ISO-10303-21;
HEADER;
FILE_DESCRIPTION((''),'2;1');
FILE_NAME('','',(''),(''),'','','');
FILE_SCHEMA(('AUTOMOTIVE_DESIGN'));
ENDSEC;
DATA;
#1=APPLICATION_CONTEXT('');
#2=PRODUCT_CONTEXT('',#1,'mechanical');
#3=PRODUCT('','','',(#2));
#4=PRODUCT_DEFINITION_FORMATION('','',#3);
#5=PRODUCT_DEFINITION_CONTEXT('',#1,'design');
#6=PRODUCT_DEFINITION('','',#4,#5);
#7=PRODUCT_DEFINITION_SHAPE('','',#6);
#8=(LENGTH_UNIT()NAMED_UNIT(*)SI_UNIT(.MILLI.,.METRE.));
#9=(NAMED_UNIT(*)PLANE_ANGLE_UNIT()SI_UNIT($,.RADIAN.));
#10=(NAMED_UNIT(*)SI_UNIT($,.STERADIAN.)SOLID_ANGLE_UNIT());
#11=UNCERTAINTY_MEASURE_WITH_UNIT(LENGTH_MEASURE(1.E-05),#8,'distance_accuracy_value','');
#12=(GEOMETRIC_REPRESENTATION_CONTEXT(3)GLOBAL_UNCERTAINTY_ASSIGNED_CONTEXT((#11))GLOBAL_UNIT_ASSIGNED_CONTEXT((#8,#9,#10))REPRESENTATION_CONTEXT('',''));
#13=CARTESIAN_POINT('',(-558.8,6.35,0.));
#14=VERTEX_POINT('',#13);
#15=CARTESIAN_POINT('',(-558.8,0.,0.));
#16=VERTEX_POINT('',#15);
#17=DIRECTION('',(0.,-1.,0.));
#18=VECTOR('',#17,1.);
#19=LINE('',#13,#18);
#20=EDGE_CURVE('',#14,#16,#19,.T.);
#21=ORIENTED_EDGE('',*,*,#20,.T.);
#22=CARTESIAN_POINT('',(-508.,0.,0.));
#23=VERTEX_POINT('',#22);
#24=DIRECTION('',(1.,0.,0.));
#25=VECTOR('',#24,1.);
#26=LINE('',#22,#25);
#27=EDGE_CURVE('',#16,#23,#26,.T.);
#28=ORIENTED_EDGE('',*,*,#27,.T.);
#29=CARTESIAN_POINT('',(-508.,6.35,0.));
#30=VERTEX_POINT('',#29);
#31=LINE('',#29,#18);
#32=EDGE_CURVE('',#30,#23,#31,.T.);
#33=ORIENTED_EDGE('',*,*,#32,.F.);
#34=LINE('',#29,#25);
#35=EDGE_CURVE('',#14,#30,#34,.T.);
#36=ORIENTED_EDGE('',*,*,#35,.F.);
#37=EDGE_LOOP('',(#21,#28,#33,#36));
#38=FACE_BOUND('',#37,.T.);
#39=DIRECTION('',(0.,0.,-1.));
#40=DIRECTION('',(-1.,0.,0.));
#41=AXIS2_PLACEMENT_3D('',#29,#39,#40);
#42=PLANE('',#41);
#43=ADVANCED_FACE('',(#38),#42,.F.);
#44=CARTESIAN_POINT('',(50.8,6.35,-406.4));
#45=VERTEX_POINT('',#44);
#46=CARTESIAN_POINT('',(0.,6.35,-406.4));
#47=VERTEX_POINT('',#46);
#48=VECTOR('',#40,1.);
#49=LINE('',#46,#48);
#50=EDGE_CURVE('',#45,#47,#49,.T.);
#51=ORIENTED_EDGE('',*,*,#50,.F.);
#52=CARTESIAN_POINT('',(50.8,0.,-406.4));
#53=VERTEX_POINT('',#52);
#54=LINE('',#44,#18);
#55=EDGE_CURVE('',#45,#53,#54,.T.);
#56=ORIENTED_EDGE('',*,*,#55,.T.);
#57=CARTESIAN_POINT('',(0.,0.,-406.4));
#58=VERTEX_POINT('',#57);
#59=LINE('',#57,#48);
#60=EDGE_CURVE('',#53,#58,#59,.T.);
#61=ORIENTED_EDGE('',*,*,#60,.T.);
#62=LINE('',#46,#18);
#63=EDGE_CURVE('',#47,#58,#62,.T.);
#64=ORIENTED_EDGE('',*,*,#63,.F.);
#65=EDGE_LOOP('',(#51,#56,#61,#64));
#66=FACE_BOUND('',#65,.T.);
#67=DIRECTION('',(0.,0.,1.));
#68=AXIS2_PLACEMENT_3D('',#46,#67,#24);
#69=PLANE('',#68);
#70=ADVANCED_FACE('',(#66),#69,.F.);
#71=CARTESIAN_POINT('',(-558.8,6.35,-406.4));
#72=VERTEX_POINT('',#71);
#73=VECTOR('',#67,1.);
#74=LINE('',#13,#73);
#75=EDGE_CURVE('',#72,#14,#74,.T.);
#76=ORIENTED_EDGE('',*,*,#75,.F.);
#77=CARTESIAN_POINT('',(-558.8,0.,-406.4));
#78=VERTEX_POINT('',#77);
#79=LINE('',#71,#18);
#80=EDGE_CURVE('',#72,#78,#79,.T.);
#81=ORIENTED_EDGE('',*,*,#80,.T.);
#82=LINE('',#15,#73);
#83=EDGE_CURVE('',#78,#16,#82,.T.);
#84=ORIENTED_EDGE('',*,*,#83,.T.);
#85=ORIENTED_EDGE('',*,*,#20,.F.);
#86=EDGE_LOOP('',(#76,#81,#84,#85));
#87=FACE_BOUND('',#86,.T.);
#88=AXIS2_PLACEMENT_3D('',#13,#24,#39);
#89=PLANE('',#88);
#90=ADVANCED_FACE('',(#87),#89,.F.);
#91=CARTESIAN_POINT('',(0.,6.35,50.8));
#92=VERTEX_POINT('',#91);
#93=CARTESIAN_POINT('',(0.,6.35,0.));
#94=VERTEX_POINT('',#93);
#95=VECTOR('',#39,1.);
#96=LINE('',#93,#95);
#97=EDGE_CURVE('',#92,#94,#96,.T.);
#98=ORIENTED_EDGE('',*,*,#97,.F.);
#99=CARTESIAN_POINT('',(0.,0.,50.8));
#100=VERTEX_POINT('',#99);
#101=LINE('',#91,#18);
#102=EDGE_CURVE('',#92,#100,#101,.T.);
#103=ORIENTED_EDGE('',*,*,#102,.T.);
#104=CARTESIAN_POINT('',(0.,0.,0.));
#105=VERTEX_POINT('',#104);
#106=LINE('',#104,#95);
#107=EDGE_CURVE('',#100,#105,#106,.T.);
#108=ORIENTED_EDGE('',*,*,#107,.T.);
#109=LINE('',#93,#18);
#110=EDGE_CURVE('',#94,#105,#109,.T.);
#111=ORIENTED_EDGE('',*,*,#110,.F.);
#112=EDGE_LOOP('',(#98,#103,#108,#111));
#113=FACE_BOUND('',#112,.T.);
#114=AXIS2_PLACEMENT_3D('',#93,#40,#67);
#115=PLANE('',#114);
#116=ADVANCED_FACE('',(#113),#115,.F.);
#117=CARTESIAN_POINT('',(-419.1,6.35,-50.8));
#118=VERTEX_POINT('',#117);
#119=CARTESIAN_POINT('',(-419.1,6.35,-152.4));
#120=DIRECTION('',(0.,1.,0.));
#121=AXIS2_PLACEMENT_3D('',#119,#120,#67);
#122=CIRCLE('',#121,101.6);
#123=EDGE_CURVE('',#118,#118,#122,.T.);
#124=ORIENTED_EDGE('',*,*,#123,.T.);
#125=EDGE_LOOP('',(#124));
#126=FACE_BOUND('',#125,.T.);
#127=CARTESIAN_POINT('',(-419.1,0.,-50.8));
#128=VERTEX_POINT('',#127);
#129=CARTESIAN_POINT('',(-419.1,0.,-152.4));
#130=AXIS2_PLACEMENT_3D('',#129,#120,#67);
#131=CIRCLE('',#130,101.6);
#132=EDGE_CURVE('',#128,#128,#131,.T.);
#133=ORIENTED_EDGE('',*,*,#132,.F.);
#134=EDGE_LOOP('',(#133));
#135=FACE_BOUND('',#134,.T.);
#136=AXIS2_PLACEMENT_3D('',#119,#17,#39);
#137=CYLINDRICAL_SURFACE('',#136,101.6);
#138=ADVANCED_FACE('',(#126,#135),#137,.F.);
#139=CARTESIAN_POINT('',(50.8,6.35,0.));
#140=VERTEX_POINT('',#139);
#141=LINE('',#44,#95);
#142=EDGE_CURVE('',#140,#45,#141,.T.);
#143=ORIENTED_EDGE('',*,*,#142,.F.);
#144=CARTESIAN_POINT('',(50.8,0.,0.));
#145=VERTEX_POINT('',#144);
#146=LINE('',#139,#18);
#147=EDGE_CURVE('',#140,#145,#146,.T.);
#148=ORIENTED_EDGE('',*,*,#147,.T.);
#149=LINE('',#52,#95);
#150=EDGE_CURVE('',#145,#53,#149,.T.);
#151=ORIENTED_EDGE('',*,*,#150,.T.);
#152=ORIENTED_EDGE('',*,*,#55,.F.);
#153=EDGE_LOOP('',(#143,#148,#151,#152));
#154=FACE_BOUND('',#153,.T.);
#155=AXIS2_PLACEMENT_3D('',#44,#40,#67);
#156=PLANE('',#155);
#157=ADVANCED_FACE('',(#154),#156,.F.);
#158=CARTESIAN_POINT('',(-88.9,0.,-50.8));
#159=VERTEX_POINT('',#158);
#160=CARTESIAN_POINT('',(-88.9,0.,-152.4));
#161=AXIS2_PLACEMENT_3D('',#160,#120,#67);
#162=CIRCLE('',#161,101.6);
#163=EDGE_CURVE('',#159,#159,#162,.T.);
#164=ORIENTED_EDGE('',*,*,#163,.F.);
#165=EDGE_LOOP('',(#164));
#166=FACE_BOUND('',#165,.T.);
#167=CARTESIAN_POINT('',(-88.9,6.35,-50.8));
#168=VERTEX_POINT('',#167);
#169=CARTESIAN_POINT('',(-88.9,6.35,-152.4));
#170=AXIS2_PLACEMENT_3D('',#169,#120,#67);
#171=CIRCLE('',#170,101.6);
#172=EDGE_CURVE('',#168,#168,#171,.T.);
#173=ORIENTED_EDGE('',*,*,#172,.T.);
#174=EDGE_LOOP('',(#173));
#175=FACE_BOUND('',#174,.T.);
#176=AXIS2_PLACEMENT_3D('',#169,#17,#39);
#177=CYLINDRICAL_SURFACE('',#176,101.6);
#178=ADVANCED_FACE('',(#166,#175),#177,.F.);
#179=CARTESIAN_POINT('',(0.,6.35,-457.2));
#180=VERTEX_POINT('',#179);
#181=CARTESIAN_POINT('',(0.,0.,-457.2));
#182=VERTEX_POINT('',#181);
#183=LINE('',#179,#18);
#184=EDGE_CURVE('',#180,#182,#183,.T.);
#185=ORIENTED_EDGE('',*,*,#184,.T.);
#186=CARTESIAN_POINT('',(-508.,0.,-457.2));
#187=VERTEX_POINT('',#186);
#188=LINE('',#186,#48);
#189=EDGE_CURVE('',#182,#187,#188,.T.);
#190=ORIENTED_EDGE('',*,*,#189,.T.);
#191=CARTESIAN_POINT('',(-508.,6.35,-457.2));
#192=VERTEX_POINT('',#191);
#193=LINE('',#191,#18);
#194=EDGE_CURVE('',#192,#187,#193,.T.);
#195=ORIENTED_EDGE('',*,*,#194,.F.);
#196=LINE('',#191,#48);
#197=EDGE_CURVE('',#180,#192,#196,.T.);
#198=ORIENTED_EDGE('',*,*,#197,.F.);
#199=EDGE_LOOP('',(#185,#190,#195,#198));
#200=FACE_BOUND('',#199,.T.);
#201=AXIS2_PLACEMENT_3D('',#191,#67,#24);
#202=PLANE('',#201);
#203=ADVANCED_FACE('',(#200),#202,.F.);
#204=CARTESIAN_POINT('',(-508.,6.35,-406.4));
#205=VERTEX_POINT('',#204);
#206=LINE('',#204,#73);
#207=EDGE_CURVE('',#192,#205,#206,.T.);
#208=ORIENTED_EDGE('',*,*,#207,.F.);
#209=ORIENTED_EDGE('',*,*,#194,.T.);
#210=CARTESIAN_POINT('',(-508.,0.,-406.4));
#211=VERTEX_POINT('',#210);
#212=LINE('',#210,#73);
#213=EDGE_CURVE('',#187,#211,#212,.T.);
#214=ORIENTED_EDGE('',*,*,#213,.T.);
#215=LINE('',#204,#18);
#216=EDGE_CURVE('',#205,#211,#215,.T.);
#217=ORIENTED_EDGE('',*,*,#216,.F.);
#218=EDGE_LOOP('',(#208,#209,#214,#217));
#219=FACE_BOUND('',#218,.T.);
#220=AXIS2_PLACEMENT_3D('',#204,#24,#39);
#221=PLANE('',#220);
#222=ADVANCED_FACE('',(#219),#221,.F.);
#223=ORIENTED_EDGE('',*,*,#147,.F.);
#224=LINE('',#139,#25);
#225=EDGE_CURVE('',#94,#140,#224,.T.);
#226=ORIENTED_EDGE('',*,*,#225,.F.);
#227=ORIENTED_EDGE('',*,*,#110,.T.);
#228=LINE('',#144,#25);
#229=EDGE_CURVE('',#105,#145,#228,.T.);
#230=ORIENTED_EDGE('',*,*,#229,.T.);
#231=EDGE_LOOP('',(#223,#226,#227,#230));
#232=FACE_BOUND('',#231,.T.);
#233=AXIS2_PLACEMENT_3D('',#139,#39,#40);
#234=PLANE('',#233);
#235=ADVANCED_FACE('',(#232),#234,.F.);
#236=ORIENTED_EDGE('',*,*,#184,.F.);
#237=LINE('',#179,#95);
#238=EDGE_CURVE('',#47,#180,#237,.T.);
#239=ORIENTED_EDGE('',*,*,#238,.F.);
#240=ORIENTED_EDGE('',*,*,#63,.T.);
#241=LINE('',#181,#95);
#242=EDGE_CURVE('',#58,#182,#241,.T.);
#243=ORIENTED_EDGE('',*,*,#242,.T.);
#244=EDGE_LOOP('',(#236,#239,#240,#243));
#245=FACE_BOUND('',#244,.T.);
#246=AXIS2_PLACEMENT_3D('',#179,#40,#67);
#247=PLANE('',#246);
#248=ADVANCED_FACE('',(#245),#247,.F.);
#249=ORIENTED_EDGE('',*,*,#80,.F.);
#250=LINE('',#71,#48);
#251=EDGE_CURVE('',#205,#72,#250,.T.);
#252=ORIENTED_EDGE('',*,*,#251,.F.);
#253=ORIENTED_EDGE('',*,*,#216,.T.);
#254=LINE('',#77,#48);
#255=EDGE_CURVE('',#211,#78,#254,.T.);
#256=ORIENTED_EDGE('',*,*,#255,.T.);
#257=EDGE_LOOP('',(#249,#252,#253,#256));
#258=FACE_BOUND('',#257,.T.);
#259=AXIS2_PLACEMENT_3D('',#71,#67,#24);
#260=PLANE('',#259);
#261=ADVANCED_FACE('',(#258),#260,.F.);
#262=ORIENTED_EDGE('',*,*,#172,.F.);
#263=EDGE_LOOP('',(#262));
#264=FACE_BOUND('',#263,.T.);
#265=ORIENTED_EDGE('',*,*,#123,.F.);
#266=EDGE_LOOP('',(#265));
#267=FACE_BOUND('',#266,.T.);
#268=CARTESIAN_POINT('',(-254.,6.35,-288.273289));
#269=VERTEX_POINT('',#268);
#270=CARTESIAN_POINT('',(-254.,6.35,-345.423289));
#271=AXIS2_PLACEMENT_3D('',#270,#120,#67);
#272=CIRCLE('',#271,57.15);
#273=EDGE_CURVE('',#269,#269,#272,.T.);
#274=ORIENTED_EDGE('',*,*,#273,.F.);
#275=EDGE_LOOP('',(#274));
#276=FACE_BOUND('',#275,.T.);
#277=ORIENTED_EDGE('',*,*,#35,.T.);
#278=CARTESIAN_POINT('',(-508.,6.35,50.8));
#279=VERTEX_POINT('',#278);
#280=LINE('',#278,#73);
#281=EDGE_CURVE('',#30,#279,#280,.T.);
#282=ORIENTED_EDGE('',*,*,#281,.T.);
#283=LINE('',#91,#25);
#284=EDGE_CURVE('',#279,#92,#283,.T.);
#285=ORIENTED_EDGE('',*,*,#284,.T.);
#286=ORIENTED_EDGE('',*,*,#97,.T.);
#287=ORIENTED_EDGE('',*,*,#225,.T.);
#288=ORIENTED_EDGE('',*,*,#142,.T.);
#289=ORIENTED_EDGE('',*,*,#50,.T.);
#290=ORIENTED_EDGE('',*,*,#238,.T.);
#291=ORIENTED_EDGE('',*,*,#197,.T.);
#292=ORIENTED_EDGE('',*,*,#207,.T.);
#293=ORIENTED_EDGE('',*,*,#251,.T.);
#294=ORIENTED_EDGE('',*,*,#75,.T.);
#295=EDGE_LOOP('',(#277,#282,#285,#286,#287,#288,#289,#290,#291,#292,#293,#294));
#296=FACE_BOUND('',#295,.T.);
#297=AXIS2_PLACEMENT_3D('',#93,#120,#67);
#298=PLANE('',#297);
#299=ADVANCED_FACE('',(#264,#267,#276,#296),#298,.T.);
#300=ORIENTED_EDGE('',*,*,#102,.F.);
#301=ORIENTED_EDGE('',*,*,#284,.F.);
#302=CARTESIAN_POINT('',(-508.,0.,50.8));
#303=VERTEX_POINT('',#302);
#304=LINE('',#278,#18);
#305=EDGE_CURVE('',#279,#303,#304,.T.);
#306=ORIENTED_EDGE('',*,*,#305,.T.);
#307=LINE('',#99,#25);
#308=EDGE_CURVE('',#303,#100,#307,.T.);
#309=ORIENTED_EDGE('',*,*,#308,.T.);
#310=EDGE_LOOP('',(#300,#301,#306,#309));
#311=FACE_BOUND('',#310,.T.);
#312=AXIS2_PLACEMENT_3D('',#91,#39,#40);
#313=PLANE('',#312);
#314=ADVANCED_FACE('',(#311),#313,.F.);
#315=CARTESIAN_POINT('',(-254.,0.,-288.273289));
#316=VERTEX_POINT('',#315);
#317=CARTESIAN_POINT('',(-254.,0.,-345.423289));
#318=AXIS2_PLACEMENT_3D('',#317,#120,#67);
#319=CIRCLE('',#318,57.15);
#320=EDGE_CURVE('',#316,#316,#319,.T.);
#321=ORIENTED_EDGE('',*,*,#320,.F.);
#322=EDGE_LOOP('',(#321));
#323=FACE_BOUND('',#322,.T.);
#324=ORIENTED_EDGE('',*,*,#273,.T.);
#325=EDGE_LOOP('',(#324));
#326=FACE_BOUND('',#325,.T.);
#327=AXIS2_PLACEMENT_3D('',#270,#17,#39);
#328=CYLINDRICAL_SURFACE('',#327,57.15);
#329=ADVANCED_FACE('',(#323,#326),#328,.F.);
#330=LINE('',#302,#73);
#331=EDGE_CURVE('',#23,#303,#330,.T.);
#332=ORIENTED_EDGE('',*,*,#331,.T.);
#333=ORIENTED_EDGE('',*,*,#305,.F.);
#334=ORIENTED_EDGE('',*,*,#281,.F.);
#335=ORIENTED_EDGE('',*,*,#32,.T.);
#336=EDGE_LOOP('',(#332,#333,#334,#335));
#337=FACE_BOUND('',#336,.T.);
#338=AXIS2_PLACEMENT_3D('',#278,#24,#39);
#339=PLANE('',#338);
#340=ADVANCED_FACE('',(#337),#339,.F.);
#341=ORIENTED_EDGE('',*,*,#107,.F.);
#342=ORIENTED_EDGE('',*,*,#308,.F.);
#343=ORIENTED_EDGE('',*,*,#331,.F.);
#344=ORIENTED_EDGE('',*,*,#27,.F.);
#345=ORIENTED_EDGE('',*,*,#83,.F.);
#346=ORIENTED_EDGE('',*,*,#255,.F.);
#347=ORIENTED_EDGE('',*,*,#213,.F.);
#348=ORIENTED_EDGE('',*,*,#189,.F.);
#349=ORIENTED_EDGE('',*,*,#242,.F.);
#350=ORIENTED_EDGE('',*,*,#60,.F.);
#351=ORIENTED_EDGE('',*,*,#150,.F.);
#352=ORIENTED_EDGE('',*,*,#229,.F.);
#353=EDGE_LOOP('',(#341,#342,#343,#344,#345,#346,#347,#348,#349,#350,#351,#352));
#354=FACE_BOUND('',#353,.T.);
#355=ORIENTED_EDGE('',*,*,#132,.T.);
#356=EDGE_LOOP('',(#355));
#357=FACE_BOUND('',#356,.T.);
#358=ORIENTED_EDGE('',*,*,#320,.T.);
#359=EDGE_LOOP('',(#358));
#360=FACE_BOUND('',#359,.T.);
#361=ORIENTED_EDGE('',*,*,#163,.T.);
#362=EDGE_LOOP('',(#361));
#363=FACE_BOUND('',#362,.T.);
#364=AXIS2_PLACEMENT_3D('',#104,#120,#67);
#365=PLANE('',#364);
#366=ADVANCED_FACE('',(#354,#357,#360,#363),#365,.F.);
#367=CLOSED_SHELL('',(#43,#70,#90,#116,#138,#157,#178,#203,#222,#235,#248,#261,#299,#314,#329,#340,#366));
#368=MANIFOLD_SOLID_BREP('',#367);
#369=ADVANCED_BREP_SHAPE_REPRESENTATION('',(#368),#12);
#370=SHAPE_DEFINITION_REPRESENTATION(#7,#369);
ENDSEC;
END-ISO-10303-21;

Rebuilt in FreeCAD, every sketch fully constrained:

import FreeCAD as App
import Part
import Sketcher
from FreeCAD import Vector
Q = App.Units.Quantity


def add_polygon(sketch, points):
    """Adds a closed chain of lines whose ends are joined by coincident constraints."""
    first, n = sketch.GeometryCount, len(points)
    for a, b in zip(points, points[1:] + points[:1]):
        sketch.addGeometry(Part.LineSegment(App.Vector(*a, 0), App.Vector(*b, 0)), False)
    for i in range(n):
        sketch.addConstraint(Sketcher.Constraint("Coincident", first + i, 2, first + (i + 1) % n, 1))

doc = App.newDocument("Part")
body = doc.addObject("PartDesign::Body", "Body")

sketch1 = body.newObject("Sketcher::SketchObject", "Sketch")
sketch1.AttachmentSupport = (doc.getObject("XZ_Plane"), [""])
sketch1.MapMode = "FlatFace"
add_polygon(sketch1, [(0, 50.8), (0, 0), (50.8, 0), (50.8, -406.4), (0, -406.4), (0, -457.2), (-508, -457.2), (-508, -406.4), (-558.8, -406.4), (-558.8, 0), (-508, 0), (-508, 50.8)])
sketch1.addGeometry(Part.Circle(Vector(-88.9, -152.4, 0), Vector(0, 0, 1), 101.6), False)
sketch1.addGeometry(Part.Circle(Vector(-419.1, -152.4, 0), Vector(0, 0, 1), 101.6), False)
sketch1.addGeometry(Part.Circle(Vector(-254, -345.423289, 0), Vector(0, 0, 1), 57.15), False)
sketch1.addConstraint([
    Sketcher.Constraint("Vertical", 0),
    Sketcher.Constraint("Horizontal", 1),
    Sketcher.Constraint("Vertical", 2),
    Sketcher.Constraint("Horizontal", 3),
    Sketcher.Constraint("Vertical", 4),
    Sketcher.Constraint("Horizontal", 5),
    Sketcher.Constraint("Vertical", 6),
    Sketcher.Constraint("Horizontal", 7),
    Sketcher.Constraint("Vertical", 8),
    Sketcher.Constraint("Horizontal", 9),
    Sketcher.Constraint("Vertical", 10),
    Sketcher.Constraint("Horizontal", 11),
    Sketcher.Constraint("Coincident", 0, 2, -1, 1),
    Sketcher.Constraint("Equal", 12, 13),
    Sketcher.Constraint("PointOnObject", 3, 2, -2),
    Sketcher.Constraint("PointOnObject", 8, 2, -1),
    Sketcher.Constraint("Horizontal", 12, 3, 13, 3),
    Sketcher.Constraint("Horizontal", 3, 2, 6, 2),
    Sketcher.Constraint("Vertical", 6, 2, 9, 2),
    Sketcher.Constraint("Equal", 3, 7),
    Sketcher.Constraint("Equal", 9, 0),
    Sketcher.Constraint("Equal", 0, 4),
    Sketcher.Constraint("Diameter", 12, Q("8 in")),
    Sketcher.Constraint("Diameter", 14, Q("4.5 in")),
    Sketcher.Constraint("DistanceX", 1, 1, 1, 2, Q("2 in")),
    Sketcher.Constraint("DistanceX", 5, 2, 5, 1, Q("20 in")),
    Sketcher.Constraint("DistanceY", 2, 2, 2, 1, Q("16 in")),
    Sketcher.Constraint("DistanceY", 12, 3, -1, 1, Q("6 in")),
    Sketcher.Constraint("DistanceX", 14, 3, -1, 1, Q("10 in")),
    Sketcher.Constraint("DistanceX", 13, 3, 12, 3, Q("13 in")),
    Sketcher.Constraint("DistanceX", 12, 3, -1, 1, Q("3.5 in")),
    Sketcher.Constraint("DistanceY", 14, 3, -1, 1, Q("345.423289 mm")),
])
pad1 = body.newObject("PartDesign::Pad", "Pad")
pad1.Profile = sketch1
pad1.Length = Q("0.25 in")
pad1.Reversed = True

doc.recompute()
